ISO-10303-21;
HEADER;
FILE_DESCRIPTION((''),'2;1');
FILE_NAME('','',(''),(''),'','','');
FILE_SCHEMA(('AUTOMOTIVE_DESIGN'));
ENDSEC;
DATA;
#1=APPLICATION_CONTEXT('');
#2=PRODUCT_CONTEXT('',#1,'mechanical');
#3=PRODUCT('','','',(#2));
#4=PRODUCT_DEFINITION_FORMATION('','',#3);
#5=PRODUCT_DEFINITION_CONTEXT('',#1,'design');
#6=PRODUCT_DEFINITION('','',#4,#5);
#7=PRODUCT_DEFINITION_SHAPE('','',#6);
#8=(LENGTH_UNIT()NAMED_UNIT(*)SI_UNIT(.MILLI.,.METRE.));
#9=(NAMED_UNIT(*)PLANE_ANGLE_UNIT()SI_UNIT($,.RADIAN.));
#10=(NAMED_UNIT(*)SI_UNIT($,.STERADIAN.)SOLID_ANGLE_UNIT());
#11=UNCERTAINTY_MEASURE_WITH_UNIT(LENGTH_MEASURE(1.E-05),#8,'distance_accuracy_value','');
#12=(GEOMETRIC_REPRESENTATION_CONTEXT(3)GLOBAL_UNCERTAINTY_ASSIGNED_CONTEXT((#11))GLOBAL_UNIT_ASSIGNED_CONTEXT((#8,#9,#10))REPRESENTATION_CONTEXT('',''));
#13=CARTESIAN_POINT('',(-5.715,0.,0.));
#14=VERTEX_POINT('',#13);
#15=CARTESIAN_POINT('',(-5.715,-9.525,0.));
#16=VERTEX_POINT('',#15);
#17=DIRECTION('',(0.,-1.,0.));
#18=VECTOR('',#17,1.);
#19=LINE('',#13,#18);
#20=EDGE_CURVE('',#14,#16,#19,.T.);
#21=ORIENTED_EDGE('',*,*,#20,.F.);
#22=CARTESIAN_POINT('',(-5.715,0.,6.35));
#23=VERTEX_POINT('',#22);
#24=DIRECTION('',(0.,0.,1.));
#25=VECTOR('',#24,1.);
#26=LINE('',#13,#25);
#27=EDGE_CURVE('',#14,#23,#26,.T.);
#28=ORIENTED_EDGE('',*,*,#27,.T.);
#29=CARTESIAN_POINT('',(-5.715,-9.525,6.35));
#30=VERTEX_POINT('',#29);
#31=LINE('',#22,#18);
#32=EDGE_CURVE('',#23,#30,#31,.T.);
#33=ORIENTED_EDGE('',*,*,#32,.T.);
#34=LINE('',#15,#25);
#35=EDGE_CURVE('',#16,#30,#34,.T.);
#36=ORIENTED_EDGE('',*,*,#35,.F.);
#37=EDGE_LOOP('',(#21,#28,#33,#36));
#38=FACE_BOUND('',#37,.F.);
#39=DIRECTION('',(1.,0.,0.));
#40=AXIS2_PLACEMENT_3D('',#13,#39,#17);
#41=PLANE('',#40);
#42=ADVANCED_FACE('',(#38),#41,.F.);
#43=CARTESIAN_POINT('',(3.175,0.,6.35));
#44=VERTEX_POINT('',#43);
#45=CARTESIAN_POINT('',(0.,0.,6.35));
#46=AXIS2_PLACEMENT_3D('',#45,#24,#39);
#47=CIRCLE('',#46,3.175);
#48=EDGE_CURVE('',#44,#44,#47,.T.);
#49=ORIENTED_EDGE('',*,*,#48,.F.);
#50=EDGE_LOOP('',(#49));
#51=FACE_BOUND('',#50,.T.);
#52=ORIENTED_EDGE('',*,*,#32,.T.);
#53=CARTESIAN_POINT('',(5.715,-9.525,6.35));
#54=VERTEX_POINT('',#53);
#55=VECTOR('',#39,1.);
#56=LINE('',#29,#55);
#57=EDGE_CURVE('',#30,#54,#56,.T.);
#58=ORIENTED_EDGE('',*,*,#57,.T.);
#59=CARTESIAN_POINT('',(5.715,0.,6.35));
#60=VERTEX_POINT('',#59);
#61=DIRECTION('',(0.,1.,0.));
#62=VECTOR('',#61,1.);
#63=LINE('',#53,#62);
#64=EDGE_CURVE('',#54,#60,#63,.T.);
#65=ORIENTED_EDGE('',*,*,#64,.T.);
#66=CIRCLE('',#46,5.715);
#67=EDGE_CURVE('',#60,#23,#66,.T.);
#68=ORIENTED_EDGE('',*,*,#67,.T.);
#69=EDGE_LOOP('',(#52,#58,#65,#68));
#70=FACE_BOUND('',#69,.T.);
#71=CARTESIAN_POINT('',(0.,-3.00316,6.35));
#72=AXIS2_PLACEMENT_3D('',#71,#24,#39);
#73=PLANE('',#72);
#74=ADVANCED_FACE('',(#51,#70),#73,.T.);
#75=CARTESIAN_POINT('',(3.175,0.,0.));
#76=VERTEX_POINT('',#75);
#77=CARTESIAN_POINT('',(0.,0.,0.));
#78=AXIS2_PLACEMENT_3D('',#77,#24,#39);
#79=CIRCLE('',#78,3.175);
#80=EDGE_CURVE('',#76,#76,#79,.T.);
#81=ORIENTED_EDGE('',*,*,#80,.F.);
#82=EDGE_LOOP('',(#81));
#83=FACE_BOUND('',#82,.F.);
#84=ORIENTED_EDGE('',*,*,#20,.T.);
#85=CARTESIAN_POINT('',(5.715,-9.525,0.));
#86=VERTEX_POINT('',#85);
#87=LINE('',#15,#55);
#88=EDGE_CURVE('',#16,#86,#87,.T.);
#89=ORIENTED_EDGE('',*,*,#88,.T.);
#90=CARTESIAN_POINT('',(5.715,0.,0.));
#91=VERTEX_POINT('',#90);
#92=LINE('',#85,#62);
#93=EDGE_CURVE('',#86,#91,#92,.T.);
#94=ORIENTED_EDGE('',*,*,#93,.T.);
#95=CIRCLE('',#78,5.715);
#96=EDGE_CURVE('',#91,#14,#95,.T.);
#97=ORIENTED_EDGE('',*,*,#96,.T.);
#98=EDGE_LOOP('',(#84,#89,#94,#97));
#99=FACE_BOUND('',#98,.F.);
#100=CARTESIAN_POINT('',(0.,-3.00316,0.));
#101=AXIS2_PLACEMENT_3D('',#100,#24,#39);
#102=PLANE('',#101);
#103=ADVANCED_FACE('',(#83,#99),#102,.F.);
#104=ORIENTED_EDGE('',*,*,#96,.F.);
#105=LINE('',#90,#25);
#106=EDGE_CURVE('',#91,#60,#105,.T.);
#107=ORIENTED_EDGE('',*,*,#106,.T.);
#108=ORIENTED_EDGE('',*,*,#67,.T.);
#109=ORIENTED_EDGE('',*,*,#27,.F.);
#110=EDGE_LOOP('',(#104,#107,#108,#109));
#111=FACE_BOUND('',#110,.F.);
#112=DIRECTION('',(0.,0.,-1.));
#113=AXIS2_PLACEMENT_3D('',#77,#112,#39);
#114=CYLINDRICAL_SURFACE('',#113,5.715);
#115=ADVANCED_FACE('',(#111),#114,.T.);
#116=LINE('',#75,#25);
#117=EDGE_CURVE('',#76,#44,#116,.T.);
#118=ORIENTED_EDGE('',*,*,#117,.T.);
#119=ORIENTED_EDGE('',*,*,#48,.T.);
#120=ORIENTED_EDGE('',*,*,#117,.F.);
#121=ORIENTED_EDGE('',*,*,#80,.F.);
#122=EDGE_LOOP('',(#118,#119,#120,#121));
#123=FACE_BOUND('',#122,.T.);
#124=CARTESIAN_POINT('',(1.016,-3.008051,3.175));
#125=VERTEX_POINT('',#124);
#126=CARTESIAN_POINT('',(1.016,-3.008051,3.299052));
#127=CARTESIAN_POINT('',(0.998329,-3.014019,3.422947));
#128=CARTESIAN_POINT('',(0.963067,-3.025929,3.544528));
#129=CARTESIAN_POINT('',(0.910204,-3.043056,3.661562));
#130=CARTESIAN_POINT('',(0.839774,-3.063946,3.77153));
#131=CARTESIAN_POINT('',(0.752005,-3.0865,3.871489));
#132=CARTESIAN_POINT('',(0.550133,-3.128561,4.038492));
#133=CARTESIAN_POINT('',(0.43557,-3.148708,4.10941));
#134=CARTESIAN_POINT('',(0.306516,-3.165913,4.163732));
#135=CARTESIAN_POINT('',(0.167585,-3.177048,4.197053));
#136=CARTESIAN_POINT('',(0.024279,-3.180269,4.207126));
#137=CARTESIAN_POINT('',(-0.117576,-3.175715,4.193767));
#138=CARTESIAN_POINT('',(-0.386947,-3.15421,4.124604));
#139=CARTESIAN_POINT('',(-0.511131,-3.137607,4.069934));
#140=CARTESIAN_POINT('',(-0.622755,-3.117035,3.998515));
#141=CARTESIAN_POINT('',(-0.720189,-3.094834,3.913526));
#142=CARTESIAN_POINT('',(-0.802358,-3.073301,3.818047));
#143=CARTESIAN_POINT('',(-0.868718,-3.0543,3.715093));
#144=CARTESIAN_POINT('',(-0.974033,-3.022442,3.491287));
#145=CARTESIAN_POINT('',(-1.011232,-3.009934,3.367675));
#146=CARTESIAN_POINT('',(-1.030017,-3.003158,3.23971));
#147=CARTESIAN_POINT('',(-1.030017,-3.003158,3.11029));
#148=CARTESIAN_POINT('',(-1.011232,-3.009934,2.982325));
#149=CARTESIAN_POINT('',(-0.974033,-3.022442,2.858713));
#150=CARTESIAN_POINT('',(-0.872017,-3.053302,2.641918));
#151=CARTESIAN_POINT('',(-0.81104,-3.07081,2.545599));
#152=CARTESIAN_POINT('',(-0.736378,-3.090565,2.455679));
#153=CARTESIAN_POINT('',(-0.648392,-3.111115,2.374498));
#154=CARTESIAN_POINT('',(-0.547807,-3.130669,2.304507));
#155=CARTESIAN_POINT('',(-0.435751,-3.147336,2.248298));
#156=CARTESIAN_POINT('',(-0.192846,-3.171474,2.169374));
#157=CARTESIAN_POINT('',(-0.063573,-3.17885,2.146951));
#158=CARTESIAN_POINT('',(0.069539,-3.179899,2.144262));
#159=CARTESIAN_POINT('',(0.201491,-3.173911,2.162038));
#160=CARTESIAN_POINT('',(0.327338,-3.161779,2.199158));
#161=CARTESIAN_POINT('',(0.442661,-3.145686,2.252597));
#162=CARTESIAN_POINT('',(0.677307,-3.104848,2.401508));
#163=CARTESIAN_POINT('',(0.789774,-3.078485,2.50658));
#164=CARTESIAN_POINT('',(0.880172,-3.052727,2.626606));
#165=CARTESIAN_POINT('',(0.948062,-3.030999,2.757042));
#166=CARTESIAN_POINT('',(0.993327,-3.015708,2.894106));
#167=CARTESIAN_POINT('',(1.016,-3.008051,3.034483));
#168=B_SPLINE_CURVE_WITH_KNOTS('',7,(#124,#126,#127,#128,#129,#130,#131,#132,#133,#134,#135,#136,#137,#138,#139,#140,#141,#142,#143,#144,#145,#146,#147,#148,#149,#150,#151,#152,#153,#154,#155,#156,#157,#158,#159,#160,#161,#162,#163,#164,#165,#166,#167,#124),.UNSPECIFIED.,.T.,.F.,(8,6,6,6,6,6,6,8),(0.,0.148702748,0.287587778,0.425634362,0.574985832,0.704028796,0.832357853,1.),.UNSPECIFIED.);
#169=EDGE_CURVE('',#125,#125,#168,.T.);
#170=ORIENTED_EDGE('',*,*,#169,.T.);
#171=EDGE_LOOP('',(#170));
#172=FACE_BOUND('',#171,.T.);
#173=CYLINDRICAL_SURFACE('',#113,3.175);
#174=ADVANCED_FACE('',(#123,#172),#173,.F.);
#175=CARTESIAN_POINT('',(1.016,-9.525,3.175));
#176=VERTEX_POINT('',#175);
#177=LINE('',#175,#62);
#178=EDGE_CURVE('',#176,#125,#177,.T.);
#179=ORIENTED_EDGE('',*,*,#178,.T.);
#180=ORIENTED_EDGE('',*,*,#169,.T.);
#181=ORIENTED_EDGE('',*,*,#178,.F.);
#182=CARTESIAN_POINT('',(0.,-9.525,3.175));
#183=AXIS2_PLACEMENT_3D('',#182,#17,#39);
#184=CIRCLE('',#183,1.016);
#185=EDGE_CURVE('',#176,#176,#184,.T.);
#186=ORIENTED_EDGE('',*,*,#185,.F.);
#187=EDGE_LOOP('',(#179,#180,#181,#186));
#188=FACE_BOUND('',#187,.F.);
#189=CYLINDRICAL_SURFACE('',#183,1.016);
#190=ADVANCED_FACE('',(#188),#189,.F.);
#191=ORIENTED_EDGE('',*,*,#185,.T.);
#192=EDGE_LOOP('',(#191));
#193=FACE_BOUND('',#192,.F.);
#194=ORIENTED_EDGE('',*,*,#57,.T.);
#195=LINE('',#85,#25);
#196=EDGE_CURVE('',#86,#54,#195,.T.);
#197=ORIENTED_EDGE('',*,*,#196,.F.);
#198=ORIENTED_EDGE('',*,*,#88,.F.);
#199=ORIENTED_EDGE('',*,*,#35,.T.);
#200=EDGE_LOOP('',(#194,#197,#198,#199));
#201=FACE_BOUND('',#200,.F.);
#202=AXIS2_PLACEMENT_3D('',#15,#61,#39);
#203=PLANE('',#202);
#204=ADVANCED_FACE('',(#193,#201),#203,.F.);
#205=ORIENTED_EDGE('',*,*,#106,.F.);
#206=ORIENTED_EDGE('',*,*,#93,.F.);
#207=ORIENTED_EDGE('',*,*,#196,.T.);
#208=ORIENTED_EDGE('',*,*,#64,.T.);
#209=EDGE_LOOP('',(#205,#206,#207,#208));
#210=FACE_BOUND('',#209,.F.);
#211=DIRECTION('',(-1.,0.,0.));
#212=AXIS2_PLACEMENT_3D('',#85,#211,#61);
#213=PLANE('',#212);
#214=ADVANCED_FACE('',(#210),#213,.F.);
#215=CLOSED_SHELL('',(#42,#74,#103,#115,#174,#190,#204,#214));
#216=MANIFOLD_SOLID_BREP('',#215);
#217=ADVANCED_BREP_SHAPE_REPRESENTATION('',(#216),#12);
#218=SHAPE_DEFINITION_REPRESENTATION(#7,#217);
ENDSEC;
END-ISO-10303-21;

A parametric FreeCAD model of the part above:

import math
import FreeCAD as App
import Part
import Sketcher

V = App.Vector
Q = App.Units.Quantity

doc = App.newDocument("Part")
body = doc.addObject("PartDesign::Body", "Body")

# Sketch on XY plane
sketch1 = body.newObject("Sketcher::SketchObject", "Sketch")
sketch1.AttachmentSupport = (doc.getObject("XY_Plane"), [""])
sketch1.MapMode = "FlatFace"
sketch1.addGeometry(Part.LineSegment(V(-5.7, -9.5, 0), V(5.7, -9.5, 0)), False)
sketch1.addGeometry(Part.LineSegment(V(5.7, -9.5, 0), V(5.7, 0, 0)), False)
sketch1.addGeometry(Part.ArcOfCircle(Part.Circle(V(0, 0, 0), V(0, 0, 1), 5.7), math.radians(0), math.radians(180)), False)
sketch1.addGeometry(Part.LineSegment(V(-5.7, 0, 0), V(-5.7, -9.5, 0)), False)
sketch1.addGeometry(Part.Circle(V(0, 0, 0), V(0, 0, 1), 3.2), False)
sketch1.addConstraint(Sketcher.Constraint("Coincident", 0, 2, 1, 1))
sketch1.addConstraint(Sketcher.Constraint("Tangent", 1, 2, 2, 1))
sketch1.addConstraint(Sketcher.Constraint("Tangent", 2, 2, 3, 1))
sketch1.addConstraint(Sketcher.Constraint("Coincident", 3, 2, 0, 1))
sketch1.addConstraint(Sketcher.Constraint("Horizontal", 0))
sketch1.addConstraint(Sketcher.Constraint("Vertical", 1))
sketch1.addConstraint(Sketcher.Constraint("Vertical", 3))
sketch1.addConstraint(Sketcher.Constraint("Coincident", 2, 3, -1, 1))
sketch1.addConstraint(Sketcher.Constraint("Coincident", 4, 3, -1, 1))
sketch1.addConstraint(Sketcher.Constraint("Diameter", 4, Q("0.25 in")))
sketch1.addConstraint(Sketcher.Constraint("Radius", 2, Q("0.225 in")))
sketch1.addConstraint(Sketcher.Constraint("DistanceY", 1, 1, 1, 2, Q("0.375 in")))
pad1 = body.newObject("PartDesign::Pad", "Pad")
pad1.Profile = sketch1
pad1.Length = Q("0.25 in")

# Sketch on XZ plane
sketch2 = body.newObject("Sketcher::SketchObject", "Sketch001")
sketch2.AttachmentSupport = (doc.getObject("XZ_Plane"), [""])
sketch2.MapMode = "FlatFace"
sketch2.AttachmentOffset = App.Placement(V(0, 0, 0.375 * 25.4), App.Rotation())
sketch2.addGeometry(Part.Circle(V(0, 3.2, 0), V(0, 0, 1), 1), False)
sketch2.addConstraint(Sketcher.Constraint("PointOnObject", 0, 3, -2))
sketch2.addConstraint(Sketcher.Constraint("Diameter", 0, Q("0.08 in")))
sketch2.addConstraint(Sketcher.Constraint("DistanceY", -1, 1, 0, 3, Q("0.125 in")))
pocket1 = body.newObject("PartDesign::Pocket", "Pocket")
pocket1.Profile = sketch2
pocket1.Length = Q("0.36 in")

doc.recompute()
